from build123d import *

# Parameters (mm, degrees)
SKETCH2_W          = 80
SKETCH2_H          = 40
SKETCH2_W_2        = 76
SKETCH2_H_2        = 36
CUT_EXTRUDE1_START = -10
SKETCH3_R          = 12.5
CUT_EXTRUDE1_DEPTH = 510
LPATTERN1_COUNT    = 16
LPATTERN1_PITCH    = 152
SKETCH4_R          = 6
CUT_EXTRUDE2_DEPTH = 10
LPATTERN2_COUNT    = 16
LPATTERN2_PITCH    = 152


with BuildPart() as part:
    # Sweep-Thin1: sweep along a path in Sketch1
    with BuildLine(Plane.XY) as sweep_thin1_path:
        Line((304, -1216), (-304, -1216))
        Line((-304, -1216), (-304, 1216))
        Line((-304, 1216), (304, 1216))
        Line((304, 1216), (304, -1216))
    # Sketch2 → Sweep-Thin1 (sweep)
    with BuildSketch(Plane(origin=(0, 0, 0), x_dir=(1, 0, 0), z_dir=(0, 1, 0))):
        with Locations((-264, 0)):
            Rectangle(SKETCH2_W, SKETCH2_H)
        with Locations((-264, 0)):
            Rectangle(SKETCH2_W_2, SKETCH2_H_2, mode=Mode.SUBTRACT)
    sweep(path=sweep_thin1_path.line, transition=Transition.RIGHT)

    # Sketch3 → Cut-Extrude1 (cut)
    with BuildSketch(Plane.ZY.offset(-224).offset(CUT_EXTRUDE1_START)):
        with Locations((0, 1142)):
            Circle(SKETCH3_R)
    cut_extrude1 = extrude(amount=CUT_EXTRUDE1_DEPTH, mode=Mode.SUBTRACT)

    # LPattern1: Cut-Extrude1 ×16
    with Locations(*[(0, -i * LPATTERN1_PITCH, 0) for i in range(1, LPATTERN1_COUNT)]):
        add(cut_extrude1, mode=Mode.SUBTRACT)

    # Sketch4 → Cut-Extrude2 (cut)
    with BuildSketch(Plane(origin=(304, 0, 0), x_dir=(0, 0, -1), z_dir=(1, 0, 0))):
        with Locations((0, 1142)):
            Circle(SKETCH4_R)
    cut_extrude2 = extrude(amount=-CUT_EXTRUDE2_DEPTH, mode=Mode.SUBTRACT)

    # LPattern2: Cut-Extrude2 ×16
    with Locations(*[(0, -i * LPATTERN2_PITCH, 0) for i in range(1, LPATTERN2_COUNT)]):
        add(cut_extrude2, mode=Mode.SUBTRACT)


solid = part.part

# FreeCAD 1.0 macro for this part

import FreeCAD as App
import Part
import Sketcher

V = App.Vector

doc = App.newDocument("Part")
body = doc.addObject("PartDesign::Body", "Body")

# Sketch on XZ plane
sketch1 = body.newObject("Sketcher::SketchObject", "Sketch")
sketch1.AttachmentSupport = (doc.getObject("XZ_Plane"), [""])
sketch1.MapMode = "FlatFace"
sketch1.addGeometry(Part.LineSegment(V(-304, -20, 0), V(-304, 20, 0)), False)
sketch1.addGeometry(Part.LineSegment(V(-304, 20, 0), V(-224, 20, 0)), False)
sketch1.addGeometry(Part.LineSegment(V(-224, 20, 0), V(-224, -20, 0)), False)
sketch1.addGeometry(Part.LineSegment(V(-224, -20, 0), V(-304, -20, 0)), False)
sketch1.addGeometry(Part.LineSegment(V(-226, 18, 0), V(-302, 18, 0)), False)
sketch1.addGeometry(Part.LineSegment(V(-302, 18, 0), V(-302, -18, 0)), False)
sketch1.addGeometry(Part.LineSegment(V(-302, -18, 0), V(-226, -18, 0)), False)
sketch1.addGeometry(Part.LineSegment(V(-226, -18, 0), V(-226, 18, 0)), False)
sketch1.addConstraint(Sketcher.Constraint("Coincident", 0, 2, 1, 1))
sketch1.addConstraint(Sketcher.Constraint("Coincident", 1, 2, 2, 1))
sketch1.addConstraint(Sketcher.Constraint("Coincident", 2, 2, 3, 1))
sketch1.addConstraint(Sketcher.Constraint("Coincident", 3, 2, 0, 1))
sketch1.addConstraint(Sketcher.Constraint("Coincident", 4, 2, 5, 1))
sketch1.addConstraint(Sketcher.Constraint("Coincident", 5, 2, 6, 1))
sketch1.addConstraint(Sketcher.Constraint("Coincident", 6, 2, 7, 1))
sketch1.addConstraint(Sketcher.Constraint("Coincident", 7, 2, 4, 1))
sketch1.addConstraint(Sketcher.Constraint("Vertical", 0))
sketch1.addConstraint(Sketcher.Constraint("Horizontal", 1))
sketch1.addConstraint(Sketcher.Constraint("Vertical", 2))
sketch1.addConstraint(Sketcher.Constraint("Horizontal", 3))
sketch1.addConstraint(Sketcher.Constraint("Horizontal", 4))
sketch1.addConstraint(Sketcher.Constraint("Vertical", 5))
sketch1.addConstraint(Sketcher.Constraint("Horizontal", 6))
sketch1.addConstraint(Sketcher.Constraint("Vertical", 7))
sketch1.addConstraint(Sketcher.Constraint("DistanceX", 1, 1, 1, 2, 80.0))
sketch1.addConstraint(Sketcher.Constraint("DistanceX", 4, 2, 4, 1, 76.0))
sketch1.addConstraint(Sketcher.Constraint("DistanceY", 0, 1, 0, 2, 40.0))
sketch1.addConstraint(Sketcher.Constraint("DistanceY", 5, 2, 5, 1, 36.0))
sketch1.addConstraint(Sketcher.Constraint("DistanceX", 0, 2, -1, 1, 304.0))
sketch1.addConstraint(Sketcher.Constraint("DistanceY", -1, 1, 0, 2, 20.0))
sketch1.addConstraint(Sketcher.Constraint("DistanceX", 4, 2, -1, 1, 302.0))
sketch1.addConstraint(Sketcher.Constraint("DistanceY", -1, 1, 4, 2, 18.0))

# Sketch on XY plane
sketch2 = body.newObject("Sketcher::SketchObject", "Sketch001")
sketch2.AttachmentSupport = (doc.getObject("XY_Plane"), [""])
sketch2.MapMode = "FlatFace"
sketch2.addGeometry(Part.LineSegment(V(304, -1216, 0), V(-304, -1216, 0)), False)
sketch2.addGeometry(Part.LineSegment(V(-304, -1216, 0), V(-304, 1216, 0)), False)
sketch2.addGeometry(Part.LineSegment(V(-304, 1216, 0), V(304, 1216, 0)), False)
sketch2.addGeometry(Part.LineSegment(V(304, 1216, 0), V(304, -1216, 0)), False)
sketch2.addConstraint(Sketcher.Constraint("Coincident", 0, 2, 1, 1))
sketch2.addConstraint(Sketcher.Constraint("Coincident", 1, 2, 2, 1))
sketch2.addConstraint(Sketcher.Constraint("Coincident", 2, 2, 3, 1))
sketch2.addConstraint(Sketcher.Constraint("Coincident", 3, 2, 0, 1))
sketch2.addConstraint(Sketcher.Constraint("Horizontal", 0))
sketch2.addConstraint(Sketcher.Constraint("Vertical", 1))
sketch2.addConstraint(Sketcher.Constraint("Horizontal", 2))
sketch2.addConstraint(Sketcher.Constraint("Vertical", 3))
sketch2.addConstraint(Sketcher.Constraint("Symmetric", 0, 2, 2, 2, -1, 1))
sketch2.addConstraint(Sketcher.Constraint("DistanceX", 0, 2, 0, 1, 608.0))
sketch2.addConstraint(Sketcher.Constraint("DistanceY", 1, 1, 1, 2, 2432.0))
doc.recompute()

additivepipe = body.newObject("PartDesign::AdditivePipe", "AdditivePipe")
additivepipe.Profile = sketch1
additivepipe.Spine = (sketch2, ["Edge1", "Edge2", "Edge3", "Edge4"])
additivepipe.Transition = "Right corner"

# Sketch on YZ plane
sketch3 = body.newObject("Sketcher::SketchObject", "Sketch002")
sketch3.AttachmentSupport = (doc.getObject("YZ_Plane"), [""])
sketch3.MapMode = "FlatFace"
sketch3.AttachmentOffset = App.Placement(V(0, 0, 234), App.Rotation())
sketch3.addGeometry(Part.Circle(V(1142, 0, 0), V(0, 0, 1), 12), False)
sketch3.addConstraint(Sketcher.Constraint("PointOnObject", 0, 3, -1))
sketch3.addConstraint(Sketcher.Constraint("Diameter", 0, 25.0))
sketch3.addConstraint(Sketcher.Constraint("DistanceX", -1, 1, 0, 3, 1142.0))
pocket1 = body.newObject("PartDesign::Pocket", "Pocket")
pocket1.Profile = sketch3
pocket1.Length = 510
doc.recompute()

linearpattern = body.newObject("PartDesign::LinearPattern", "LinearPattern")
linearpattern.Originals = [pocket1]
linearpattern.Direction = (doc.getObject("Y_Axis"), [""])
linearpattern.Mode = "offset"
linearpattern.Offset = 152
linearpattern.Occurrences = 16
linearpattern.Reversed = True
body.Tip = linearpattern

# Sketch on YZ plane
sketch4 = body.newObject("Sketcher::SketchObject", "Sketch003")
sketch4.AttachmentSupport = (doc.getObject("YZ_Plane"), [""])
sketch4.MapMode = "FlatFace"
sketch4.AttachmentOffset = App.Placement(V(0, 0, 304), App.Rotation())
sketch4.addGeometry(Part.Circle(V(1142, 0, 0), V(0, 0, 1), 6), False)
sketch4.addConstraint(Sketcher.Constraint("PointOnObject", 0, 3, -1))
sketch4.addConstraint(Sketcher.Constraint("Diameter", 0, 12.0))
sketch4.addConstraint(Sketcher.Constraint("DistanceX", -1, 1, 0, 3, 1142.0))
pocket2 = body.newObject("PartDesign::Pocket", "Pocket001")
pocket2.Profile = sketch4
pocket2.Length = 10
doc.recompute()

linearpattern2 = body.newObject("PartDesign::LinearPattern", "LinearPattern001")
linearpattern2.Originals = [pocket2]
linearpattern2.Direction = (doc.getObject("Y_Axis"), [""])
linearpattern2.Mode = "offset"
linearpattern2.Offset = 152
linearpattern2.Occurrences = 16
linearpattern2.Reversed = True
body.Tip = linearpattern2

doc.recompute()
